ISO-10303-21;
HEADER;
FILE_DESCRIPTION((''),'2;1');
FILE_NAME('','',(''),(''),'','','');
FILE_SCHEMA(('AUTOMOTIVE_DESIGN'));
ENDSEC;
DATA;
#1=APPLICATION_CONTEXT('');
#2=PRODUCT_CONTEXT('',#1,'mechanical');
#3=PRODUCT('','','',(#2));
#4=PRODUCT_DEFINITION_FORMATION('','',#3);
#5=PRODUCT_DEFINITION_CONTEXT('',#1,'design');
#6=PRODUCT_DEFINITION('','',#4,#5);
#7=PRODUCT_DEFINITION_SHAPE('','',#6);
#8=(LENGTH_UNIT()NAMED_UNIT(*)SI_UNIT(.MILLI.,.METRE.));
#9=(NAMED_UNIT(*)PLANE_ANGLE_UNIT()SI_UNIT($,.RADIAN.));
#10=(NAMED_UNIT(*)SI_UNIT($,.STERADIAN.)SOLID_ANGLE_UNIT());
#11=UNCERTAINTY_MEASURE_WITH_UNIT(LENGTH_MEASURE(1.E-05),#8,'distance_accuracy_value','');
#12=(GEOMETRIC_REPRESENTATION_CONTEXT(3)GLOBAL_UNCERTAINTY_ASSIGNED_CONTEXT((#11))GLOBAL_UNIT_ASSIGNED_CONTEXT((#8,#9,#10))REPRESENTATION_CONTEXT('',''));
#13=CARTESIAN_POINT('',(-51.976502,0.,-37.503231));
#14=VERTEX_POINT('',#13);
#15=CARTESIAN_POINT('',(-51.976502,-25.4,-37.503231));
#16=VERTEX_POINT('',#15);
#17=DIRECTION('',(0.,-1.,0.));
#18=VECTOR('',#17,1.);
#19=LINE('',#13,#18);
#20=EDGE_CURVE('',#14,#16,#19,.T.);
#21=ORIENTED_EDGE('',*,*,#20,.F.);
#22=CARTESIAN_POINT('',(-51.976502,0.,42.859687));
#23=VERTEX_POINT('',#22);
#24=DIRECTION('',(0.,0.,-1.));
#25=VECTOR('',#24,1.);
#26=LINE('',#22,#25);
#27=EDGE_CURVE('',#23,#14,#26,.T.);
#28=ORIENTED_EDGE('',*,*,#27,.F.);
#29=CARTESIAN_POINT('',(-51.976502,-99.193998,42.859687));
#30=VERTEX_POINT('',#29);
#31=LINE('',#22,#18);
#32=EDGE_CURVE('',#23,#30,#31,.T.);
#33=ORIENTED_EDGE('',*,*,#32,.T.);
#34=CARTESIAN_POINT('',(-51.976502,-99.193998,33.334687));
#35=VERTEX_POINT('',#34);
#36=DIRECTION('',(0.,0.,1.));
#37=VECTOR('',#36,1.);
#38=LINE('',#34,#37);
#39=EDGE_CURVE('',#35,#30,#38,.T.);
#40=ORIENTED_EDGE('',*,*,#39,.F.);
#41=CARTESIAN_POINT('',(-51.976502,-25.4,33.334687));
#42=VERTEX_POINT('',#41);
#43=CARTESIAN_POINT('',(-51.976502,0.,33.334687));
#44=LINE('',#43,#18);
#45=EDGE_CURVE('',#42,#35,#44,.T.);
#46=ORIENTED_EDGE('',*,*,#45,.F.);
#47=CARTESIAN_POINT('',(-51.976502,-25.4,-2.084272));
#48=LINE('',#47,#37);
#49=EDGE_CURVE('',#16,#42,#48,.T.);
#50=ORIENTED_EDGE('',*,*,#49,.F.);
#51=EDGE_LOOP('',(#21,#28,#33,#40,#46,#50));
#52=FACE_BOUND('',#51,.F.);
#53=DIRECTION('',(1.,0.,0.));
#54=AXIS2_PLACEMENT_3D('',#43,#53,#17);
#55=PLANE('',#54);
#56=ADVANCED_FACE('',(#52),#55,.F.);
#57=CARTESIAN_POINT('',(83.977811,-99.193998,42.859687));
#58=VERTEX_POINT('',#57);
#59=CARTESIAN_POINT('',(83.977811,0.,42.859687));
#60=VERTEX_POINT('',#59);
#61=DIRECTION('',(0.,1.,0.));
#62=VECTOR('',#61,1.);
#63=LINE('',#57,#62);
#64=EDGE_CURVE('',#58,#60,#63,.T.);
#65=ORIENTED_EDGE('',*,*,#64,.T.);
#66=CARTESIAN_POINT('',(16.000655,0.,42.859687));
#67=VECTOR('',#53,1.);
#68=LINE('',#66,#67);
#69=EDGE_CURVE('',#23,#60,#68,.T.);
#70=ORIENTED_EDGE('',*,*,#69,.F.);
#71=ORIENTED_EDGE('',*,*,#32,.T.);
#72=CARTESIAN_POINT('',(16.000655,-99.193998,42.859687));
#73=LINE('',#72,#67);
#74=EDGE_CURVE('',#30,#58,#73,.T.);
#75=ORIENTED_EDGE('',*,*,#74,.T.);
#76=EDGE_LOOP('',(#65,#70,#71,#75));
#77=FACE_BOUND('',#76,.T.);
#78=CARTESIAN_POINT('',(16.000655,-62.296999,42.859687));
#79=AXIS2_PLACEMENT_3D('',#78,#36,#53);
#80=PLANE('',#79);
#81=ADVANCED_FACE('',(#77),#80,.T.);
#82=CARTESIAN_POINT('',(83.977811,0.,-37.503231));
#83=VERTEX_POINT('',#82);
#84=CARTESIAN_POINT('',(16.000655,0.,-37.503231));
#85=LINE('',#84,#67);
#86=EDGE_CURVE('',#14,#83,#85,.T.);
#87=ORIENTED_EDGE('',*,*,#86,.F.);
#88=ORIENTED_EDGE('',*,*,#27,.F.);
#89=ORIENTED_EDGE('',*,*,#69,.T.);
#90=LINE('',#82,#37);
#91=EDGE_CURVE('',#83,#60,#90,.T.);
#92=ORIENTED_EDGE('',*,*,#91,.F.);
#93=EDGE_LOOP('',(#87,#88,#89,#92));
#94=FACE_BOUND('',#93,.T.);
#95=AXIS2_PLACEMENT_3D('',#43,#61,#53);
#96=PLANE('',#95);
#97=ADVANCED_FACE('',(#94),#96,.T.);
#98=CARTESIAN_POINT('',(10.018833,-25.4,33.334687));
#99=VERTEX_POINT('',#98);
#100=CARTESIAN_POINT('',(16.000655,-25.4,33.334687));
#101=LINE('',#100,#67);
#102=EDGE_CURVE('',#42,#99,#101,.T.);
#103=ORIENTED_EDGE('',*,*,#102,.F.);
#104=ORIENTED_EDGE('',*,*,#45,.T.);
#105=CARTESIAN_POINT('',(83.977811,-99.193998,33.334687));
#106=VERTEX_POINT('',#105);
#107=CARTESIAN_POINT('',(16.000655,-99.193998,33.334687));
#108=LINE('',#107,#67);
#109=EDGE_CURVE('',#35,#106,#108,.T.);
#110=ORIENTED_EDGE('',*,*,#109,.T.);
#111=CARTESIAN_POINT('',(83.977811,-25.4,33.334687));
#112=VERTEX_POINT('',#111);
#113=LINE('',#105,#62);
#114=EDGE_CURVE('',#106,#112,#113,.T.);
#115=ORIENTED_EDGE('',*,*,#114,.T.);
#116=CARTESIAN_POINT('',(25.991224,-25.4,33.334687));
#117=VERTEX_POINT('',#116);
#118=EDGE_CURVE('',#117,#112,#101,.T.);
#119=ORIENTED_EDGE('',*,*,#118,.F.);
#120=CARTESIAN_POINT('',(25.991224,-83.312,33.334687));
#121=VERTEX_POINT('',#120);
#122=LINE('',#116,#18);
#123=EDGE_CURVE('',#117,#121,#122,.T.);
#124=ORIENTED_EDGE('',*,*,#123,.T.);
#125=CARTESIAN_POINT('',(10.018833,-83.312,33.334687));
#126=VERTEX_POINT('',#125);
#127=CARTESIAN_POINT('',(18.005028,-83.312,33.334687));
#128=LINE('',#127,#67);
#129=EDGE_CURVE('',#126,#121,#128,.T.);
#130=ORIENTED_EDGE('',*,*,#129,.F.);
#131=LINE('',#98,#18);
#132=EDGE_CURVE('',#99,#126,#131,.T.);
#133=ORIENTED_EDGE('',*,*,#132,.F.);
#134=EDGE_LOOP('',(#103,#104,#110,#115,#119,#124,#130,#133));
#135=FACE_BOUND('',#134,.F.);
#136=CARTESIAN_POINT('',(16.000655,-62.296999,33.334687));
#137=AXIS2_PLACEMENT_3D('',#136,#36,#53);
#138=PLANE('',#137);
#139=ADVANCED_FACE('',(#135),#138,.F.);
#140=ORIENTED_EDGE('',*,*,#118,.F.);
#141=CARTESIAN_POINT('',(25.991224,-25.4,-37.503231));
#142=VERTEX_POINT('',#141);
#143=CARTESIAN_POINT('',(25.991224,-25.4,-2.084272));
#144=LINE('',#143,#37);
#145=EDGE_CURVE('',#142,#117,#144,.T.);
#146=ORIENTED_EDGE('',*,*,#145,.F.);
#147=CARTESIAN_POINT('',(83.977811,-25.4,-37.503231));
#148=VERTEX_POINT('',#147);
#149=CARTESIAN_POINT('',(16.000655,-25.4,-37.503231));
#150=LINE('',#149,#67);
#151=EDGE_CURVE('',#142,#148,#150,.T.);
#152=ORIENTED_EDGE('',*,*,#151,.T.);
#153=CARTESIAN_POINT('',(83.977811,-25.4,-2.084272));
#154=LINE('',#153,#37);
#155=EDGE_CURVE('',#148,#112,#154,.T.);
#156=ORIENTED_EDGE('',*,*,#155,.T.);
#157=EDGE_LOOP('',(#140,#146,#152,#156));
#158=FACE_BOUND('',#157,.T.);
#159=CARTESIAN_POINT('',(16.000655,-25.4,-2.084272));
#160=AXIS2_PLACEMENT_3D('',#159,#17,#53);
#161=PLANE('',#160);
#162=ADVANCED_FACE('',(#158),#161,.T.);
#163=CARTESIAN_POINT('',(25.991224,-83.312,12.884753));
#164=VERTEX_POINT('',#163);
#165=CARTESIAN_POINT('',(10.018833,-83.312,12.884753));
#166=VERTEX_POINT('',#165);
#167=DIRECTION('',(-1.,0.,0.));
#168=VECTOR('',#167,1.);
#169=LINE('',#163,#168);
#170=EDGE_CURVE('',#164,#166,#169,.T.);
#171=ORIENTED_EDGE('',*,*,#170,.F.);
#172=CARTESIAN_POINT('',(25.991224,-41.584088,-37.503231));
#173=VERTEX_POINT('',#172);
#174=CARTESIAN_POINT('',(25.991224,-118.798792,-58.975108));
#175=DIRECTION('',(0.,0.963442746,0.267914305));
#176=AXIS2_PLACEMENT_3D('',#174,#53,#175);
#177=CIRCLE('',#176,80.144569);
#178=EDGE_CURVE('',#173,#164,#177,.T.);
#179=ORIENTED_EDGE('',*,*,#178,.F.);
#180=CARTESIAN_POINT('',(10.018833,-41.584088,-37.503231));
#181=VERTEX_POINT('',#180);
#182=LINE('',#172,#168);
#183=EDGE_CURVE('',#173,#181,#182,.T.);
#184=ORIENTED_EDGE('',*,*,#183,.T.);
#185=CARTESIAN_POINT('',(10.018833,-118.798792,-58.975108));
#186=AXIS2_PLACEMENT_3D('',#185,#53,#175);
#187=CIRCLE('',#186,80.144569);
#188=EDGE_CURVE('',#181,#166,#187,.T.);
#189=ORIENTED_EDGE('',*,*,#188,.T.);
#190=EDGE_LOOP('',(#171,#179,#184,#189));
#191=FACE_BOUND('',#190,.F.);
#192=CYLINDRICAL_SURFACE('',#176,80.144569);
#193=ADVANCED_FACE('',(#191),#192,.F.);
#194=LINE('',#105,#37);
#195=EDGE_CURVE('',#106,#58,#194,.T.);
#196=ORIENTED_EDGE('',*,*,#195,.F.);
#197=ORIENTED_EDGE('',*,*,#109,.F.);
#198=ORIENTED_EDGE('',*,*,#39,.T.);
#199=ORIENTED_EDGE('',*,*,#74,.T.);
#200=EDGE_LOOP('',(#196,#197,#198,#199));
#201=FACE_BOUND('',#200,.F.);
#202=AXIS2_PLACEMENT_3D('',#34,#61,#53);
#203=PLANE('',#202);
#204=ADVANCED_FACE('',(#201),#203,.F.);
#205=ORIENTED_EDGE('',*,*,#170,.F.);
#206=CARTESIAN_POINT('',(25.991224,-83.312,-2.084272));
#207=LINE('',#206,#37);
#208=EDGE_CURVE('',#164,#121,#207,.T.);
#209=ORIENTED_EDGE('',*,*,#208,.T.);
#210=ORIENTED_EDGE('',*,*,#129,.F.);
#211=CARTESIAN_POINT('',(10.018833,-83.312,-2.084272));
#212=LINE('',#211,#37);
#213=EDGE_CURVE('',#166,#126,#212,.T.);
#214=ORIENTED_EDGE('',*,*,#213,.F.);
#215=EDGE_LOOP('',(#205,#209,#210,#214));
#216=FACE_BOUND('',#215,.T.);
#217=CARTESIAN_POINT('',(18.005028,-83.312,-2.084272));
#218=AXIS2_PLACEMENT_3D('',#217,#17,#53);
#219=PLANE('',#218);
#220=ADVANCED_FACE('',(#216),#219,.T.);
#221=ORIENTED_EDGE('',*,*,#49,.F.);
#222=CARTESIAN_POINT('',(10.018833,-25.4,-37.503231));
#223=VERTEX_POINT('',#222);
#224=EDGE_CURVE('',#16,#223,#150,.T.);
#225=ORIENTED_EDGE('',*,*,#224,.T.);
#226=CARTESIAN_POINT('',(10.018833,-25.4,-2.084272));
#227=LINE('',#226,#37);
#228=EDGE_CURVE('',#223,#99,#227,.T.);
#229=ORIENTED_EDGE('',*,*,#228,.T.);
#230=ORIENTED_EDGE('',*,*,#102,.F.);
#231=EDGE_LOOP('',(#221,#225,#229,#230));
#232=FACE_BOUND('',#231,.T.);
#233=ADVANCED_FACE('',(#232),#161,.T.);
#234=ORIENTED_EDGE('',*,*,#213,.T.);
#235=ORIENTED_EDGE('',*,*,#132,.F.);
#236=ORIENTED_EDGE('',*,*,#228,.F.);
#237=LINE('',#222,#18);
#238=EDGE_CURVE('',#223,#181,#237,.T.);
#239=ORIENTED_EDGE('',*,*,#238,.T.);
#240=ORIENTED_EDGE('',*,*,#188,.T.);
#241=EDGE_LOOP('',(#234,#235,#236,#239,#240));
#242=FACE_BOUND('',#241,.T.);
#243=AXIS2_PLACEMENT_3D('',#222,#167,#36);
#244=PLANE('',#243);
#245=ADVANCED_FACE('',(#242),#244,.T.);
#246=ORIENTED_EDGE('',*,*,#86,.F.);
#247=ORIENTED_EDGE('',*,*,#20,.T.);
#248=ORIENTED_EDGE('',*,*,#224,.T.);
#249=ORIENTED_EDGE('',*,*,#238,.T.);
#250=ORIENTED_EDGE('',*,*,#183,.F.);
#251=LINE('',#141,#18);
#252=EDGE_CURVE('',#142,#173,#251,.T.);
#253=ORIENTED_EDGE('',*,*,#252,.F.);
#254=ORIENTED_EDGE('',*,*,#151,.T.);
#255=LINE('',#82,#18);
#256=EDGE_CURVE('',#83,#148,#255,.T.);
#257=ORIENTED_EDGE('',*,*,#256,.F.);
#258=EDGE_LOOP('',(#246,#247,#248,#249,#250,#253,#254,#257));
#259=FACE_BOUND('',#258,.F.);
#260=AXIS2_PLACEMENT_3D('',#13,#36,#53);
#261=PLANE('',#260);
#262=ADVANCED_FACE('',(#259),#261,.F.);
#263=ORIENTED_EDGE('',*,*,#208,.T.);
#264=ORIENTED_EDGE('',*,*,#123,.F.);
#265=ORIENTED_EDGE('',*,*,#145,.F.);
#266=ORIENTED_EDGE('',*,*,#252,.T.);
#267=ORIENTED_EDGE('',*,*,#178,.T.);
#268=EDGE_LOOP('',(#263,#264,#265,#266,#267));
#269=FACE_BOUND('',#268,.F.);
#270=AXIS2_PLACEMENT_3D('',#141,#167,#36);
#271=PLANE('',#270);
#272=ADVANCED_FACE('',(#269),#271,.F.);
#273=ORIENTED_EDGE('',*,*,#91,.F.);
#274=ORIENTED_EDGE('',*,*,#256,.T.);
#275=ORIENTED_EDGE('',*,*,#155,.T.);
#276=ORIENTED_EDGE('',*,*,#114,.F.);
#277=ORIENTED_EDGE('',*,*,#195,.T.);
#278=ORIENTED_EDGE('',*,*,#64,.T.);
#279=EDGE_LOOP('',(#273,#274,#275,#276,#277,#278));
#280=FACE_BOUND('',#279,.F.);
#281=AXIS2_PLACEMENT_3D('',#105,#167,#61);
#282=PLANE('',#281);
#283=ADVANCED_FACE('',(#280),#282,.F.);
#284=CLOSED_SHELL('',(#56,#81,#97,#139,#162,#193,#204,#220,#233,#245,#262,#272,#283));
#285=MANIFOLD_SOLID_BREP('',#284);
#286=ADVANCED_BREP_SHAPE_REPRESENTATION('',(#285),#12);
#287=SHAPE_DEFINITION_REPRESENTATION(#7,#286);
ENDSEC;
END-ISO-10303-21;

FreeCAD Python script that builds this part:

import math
import FreeCAD as App
import Part
import Sketcher

V = App.Vector
Q = App.Units.Quantity

doc = App.newDocument("Part")
body = doc.addObject("PartDesign::Body", "Body")

sketch1 = body.newObject("Sketcher::SketchObject", "Sketch")
sketch1.AttachmentSupport = (doc.getObject("XZ_Plane"), [""])
sketch1.MapMode = "FlatFace"
sketch1.addGeometry([
    Part.LineSegment(V(-52, 33, 0), V(-52, -38, 0)),
    Part.LineSegment(V(-52, -38, 0), V(84, -38, 0)),
    Part.LineSegment(V(84, -38, 0), V(84, 33, 0)),
    Part.LineSegment(V(84, 33, 0), V(-52, 33, 0)),
], False)
sketch1.addConstraint([
    Sketcher.Constraint("Coincident", 0, 2, 1, 1),
    Sketcher.Constraint("Coincident", 1, 2, 2, 1),
    Sketcher.Constraint("Coincident", 2, 2, 3, 1),
    Sketcher.Constraint("Coincident", 3, 2, 0, 1),
    Sketcher.Constraint("Vertical", 0),
    Sketcher.Constraint("Horizontal", 1),
    Sketcher.Constraint("Vertical", 2),
    Sketcher.Constraint("Horizontal", 3),
    Sketcher.Constraint("DistanceY", 0, 2, 0, 1, Q("70.837919 mm")),
    Sketcher.Constraint("DistanceX", 0, 2, -1, 1, Q("51.976502 mm")),
    Sketcher.Constraint("DistanceX", 1, 1, 1, 2, Q("135.954313 mm")),
    Sketcher.Constraint("DistanceY", 0, 2, -1, 1, Q("37.503231 mm")),
])
pad1 = body.newObject("PartDesign::Pad", "Pad")
pad1.Profile = sketch1
pad1.Length = Q("1 in")

sketch2 = body.newObject("Sketcher::SketchObject", "Sketch001")
sketch2.AttachmentSupport = (doc.getObject("XY_Plane"), [""])
sketch2.MapMode = "FlatFace"
sketch2.AttachmentOffset = App.Placement(V(0, 0, 33.334687), App.Rotation())
sketch2.addGeometry([
    Part.LineSegment(V(-52, -99, 0), V(84, -99, 0)),
    Part.LineSegment(V(84, -99, 0), V(84, 0, 0)),
    Part.LineSegment(V(84, 0, 0), V(-52, 0, 0)),
    Part.LineSegment(V(-52, 0, 0), V(-52, -99, 0)),
], False)
sketch2.addConstraint([
    Sketcher.Constraint("Coincident", 0, 2, 1, 1),
    Sketcher.Constraint("Coincident", 1, 2, 2, 1),
    Sketcher.Constraint("Coincident", 2, 2, 3, 1),
    Sketcher.Constraint("Coincident", 3, 2, 0, 1),
    Sketcher.Constraint("Horizontal", 0),
    Sketcher.Constraint("Vertical", 1),
    Sketcher.Constraint("Horizontal", 2),
    Sketcher.Constraint("Vertical", 3),
    Sketcher.Constraint("PointOnObject", 1, 2, -1),
    Sketcher.Constraint("DistanceX", 2, 2, -1, 1, Q("51.976502 mm")),
    Sketcher.Constraint("DistanceX", 0, 1, 0, 2, Q("135.954313 mm")),
    Sketcher.Constraint("DistanceY", 1, 1, 1, 2, Q("99.193998 mm")),
])
pad2 = body.newObject("PartDesign::Pad", "Pad001")
pad2.Profile = sketch2
pad2.Length = Q("0.375 in")

sketch3 = body.newObject("Sketcher::SketchObject", "Sketch002")
sketch3.AttachmentSupport = (doc.getObject("XZ_Plane"), [""])
sketch3.MapMode = "FlatFace"
sketch3.AttachmentOffset = App.Placement(V(0, 0, 1 * 25.4), App.Rotation())
sketch3.addGeometry([
    Part.LineSegment(V(10, 33, 0), V(10, -38, 0)),
    Part.LineSegment(V(10, -38, 0), V(26, -38, 0)),
    Part.LineSegment(V(26, -38, 0), V(26, 33, 0)),
    Part.LineSegment(V(26, 33, 0), V(10, 33, 0)),
], False)
sketch3.addConstraint([
    Sketcher.Constraint("Coincident", 0, 2, 1, 1),
    Sketcher.Constraint("Coincident", 1, 2, 2, 1),
    Sketcher.Constraint("Coincident", 2, 2, 3, 1),
    Sketcher.Constraint("Coincident", 3, 2, 0, 1),
    Sketcher.Constraint("Vertical", 0),
    Sketcher.Constraint("Horizontal", 1),
    Sketcher.Constraint("Vertical", 2),
    Sketcher.Constraint("Horizontal", 3),
    Sketcher.Constraint("DistanceX", 1, 1, 1, 2, Q("15.972391 mm")),
    Sketcher.Constraint("DistanceY", 0, 2, 0, 1, Q("70.837919 mm")),
    Sketcher.Constraint("DistanceY", 0, 2, -1, 1, Q("37.503231 mm")),
    Sketcher.Constraint("DistanceX", -1, 1, 0, 2, Q("10.018833 mm")),
])
pad3 = body.newObject("PartDesign::Pad", "Pad002")
pad3.Profile = sketch3
pad3.Length = Q("2.28 in")

sketch4 = body.newObject("Sketcher::SketchObject", "Sketch003")
sketch4.AttachmentSupport = (doc.getObject("YZ_Plane"), [""])
sketch4.MapMode = "FlatFace"
sketch4.AttachmentOffset = App.Placement(V(0, 0, 25.991224), App.Rotation())
sketch4.addGeometry([
    Part.LineSegment(V(-83, -38, 0), V(-42, -38, 0)),
    Part.ArcOfCircle(Part.Circle(V(-119, -59, 0), V(0, 0, 1), 80), math.radians(16), math.radians(64)),
    Part.LineSegment(V(-83, 13, 0), V(-83, -38, 0)),
], False)
sketch4.addConstraint([
    Sketcher.Constraint("Coincident", 0, 2, 1, 1),
    Sketcher.Constraint("Coincident", 1, 2, 2, 1),
    Sketcher.Constraint("Coincident", 2, 2, 0, 1),
    Sketcher.Constraint("Horizontal", 0),
    Sketcher.Constraint("Vertical", 2),
    Sketcher.Constraint("DistanceX", 1, 2, -1, 1, Q("3.28 in")),
    Sketcher.Constraint("Radius", 1, Q("80.144569 mm")),
    Sketcher.Constraint("DistanceX", 0, 1, 0, 2, Q("41.727912 mm")),
    Sketcher.Constraint("DistanceY", 2, 2, 2, 1, Q("50.387984 mm")),
    Sketcher.Constraint("DistanceY", 0, 2, -1, 1, Q("37.503231 mm")),
])
pocket1 = body.newObject("PartDesign::Pocket", "Pocket")
pocket1.Profile = sketch4
pocket1.Length = Q("1 in")

doc.recompute()
